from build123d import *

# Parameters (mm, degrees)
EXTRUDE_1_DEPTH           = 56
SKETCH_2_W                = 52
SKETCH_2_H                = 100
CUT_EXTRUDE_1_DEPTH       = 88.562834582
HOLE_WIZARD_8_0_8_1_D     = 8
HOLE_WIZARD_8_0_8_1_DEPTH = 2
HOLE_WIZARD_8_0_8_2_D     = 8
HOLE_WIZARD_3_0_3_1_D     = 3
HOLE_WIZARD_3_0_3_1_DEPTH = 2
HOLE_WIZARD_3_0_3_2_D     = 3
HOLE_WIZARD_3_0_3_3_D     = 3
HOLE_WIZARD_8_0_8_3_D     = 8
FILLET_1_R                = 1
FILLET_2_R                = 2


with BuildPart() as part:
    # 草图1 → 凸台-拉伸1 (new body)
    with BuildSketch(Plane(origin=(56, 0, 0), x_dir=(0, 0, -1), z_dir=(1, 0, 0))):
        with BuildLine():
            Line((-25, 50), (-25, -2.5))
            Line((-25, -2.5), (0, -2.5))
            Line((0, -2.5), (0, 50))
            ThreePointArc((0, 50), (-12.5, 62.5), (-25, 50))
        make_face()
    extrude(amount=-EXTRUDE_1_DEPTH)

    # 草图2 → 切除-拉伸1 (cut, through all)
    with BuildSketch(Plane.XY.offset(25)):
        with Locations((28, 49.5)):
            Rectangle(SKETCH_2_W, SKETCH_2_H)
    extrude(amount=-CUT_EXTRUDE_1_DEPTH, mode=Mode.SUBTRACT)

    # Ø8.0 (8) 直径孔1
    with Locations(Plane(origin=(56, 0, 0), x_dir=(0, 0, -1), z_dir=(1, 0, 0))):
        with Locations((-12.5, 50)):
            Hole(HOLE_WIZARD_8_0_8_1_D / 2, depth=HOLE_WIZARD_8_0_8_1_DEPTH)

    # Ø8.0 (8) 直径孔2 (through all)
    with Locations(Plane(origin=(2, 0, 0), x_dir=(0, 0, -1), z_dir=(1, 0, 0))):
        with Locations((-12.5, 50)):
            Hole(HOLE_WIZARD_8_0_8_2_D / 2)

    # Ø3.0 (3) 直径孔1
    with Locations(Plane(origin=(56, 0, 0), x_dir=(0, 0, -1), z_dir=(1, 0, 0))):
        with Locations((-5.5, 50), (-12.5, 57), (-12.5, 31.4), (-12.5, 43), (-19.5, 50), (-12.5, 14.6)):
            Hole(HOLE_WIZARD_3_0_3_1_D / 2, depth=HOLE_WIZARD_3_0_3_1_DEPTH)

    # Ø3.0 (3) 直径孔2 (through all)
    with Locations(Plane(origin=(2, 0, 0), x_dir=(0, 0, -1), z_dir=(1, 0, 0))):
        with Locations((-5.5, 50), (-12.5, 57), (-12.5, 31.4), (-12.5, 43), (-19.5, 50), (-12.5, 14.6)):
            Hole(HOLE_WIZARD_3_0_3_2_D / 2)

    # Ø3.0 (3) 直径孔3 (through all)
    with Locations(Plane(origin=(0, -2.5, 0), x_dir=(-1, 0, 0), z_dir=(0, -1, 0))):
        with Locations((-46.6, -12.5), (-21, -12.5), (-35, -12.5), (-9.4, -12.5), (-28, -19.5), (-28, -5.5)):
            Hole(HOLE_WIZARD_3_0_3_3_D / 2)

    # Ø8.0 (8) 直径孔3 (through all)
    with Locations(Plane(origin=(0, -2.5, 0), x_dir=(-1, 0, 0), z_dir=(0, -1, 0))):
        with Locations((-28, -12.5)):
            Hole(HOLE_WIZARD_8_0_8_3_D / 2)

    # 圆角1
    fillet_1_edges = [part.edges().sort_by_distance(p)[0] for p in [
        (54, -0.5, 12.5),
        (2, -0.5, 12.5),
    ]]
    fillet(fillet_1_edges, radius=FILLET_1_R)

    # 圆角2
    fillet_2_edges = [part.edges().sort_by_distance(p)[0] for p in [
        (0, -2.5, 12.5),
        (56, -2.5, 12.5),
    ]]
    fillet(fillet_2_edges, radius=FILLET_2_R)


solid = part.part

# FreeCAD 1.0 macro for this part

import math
import FreeCAD as App
import Part
import Sketcher
from FreeCAD import Vector


def edges_at(feature, points):
    """Names of the edges that pass closest to the given points."""
    edges = feature.Shape.Edges
    near = lambda p: min(range(len(edges)), key=lambda i: edges[i].distToShape(Part.Vertex(*p))[0])
    return sorted({f"Edge{near(p) + 1}" for p in points})


def add_polygon(sketch, points):
    """Adds a closed chain of lines whose ends are joined by coincident constraints."""
    first, n = sketch.GeometryCount, len(points)
    for a, b in zip(points, points[1:] + points[:1]):
        sketch.addGeometry(Part.LineSegment(App.Vector(*a, 0), App.Vector(*b, 0)), False)
    for i in range(n):
        sketch.addConstraint(Sketcher.Constraint("Coincident", first + i, 2, first + (i + 1) % n, 1))

doc = App.newDocument("Part")
body = doc.addObject("PartDesign::Body", "Body")

# Sketch on YZ plane
sketch1 = body.newObject("Sketcher::SketchObject", "Sketch")
sketch1.AttachmentSupport = (doc.getObject("YZ_Plane"), [""])
sketch1.MapMode = "FlatFace"
sketch1.AttachmentOffset = App.Placement(Vector(0, 0, 56), App.Rotation())
sketch1.addGeometry([
    Part.LineSegment(Vector(50, 25, 0), Vector(-2.5, 25, 0)),
    Part.LineSegment(Vector(-2.5, 25, 0), Vector(-2.5, 0, 0)),
    Part.LineSegment(Vector(-2.5, 0, 0), Vector(50, 0, 0)),
    Part.ArcOfCircle(Part.Circle(Vector(50, 12.5, 0), Vector(0, 0, 1), 12.5), math.radians(-90), math.radians(90)),
], False)
sketch1.addConstraint([
    Sketcher.Constraint("Coincident", 0, 2, 1, 1),
    Sketcher.Constraint("Coincident", 1, 2, 2, 1),
    Sketcher.Constraint("Tangent", 2, 2, 3, 1),
    Sketcher.Constraint("Tangent", 3, 2, 0, 1),
    Sketcher.Constraint("Horizontal", 0),
    Sketcher.Constraint("Vertical", 1),
    Sketcher.Constraint("Horizontal", 2),
    Sketcher.Constraint("PointOnObject", 1, 2, -1),
    Sketcher.Constraint("Radius", 3, 12.5),
    Sketcher.Constraint("DistanceX", 0, 2, 0, 1, 52.5),
    Sketcher.Constraint("DistanceX", -1, 1, 3, 3, 50.0),
])
pad1 = body.newObject("PartDesign::Pad", "Pad")
pad1.Profile = sketch1
pad1.Length = 56
pad1.Reversed = True

# Sketch on XY plane
sketch2 = body.newObject("Sketcher::SketchObject", "Sketch001")
sketch2.AttachmentSupport = (doc.getObject("XY_Plane"), [""])
sketch2.MapMode = "FlatFace"
sketch2.AttachmentOffset = App.Placement(Vector(0, 0, 25), App.Rotation())
add_polygon(sketch2, [(2, 99.5), (2, -0.5), (54, -0.5), (54, 99.5)])  # lines 0-3
sketch2.addConstraint([
    Sketcher.Constraint("Vertical", 0),
    Sketcher.Constraint("Horizontal", 1),
    Sketcher.Constraint("Vertical", 2),
    Sketcher.Constraint("Horizontal", 3),
    Sketcher.Constraint("DistanceX", 1, 1, 1, 2, 52.0),
    Sketcher.Constraint("DistanceY", 0, 2, 0, 1, 100.0),
    Sketcher.Constraint("DistanceX", -1, 1, 0, 2, 2.0),
    Sketcher.Constraint("DistanceY", 0, 2, -1, 1, 0.5),
])
pocket1 = body.newObject("PartDesign::Pocket", "Pocket")
pocket1.Profile = sketch2
pocket1.Type = "ThroughAll"

# Sketch on YZ plane
sketch3 = body.newObject("Sketcher::SketchObject", "Sketch002")
sketch3.AttachmentSupport = (doc.getObject("YZ_Plane"), [""])
sketch3.MapMode = "FlatFace"
sketch3.AttachmentOffset = App.Placement(Vector(0, 0, 56), App.Rotation())
sketch3.addGeometry(Part.Circle(Vector(50, 12.5, 0), Vector(0, 0, 1), 4), False)
sketch3.addConstraint([
    Sketcher.Constraint("Diameter", 0, 8.0),
    Sketcher.Constraint("DistanceX", -1, 1, 0, 3, 50.0),
    Sketcher.Constraint("DistanceY", -1, 1, 0, 3, 12.5),
])
doc.recompute()
hole = body.newObject("PartDesign::Hole", "Hole")
hole.Profile = sketch3
hole.ThreadType = "None"
hole.Diameter = 8
hole.DepthType = "Dimension"
hole.Depth = 2
hole.DrillPoint = "Flat"

# Sketch on YZ plane
sketch4 = body.newObject("Sketcher::SketchObject", "Sketch003")
sketch4.AttachmentSupport = (doc.getObject("YZ_Plane"), [""])
sketch4.MapMode = "FlatFace"
sketch4.AttachmentOffset = App.Placement(Vector(0, 0, 2), App.Rotation())
sketch4.addGeometry(Part.Circle(Vector(50, 12.5, 0), Vector(0, 0, 1), 4), False)
sketch4.addConstraint([
    Sketcher.Constraint("Diameter", 0, 8.0),
    Sketcher.Constraint("DistanceX", -1, 1, 0, 3, 50.0),
    Sketcher.Constraint("DistanceY", -1, 1, 0, 3, 12.5),
])
doc.recompute()
hole2 = body.newObject("PartDesign::Hole", "Hole001")
hole2.Profile = sketch4
hole2.ThreadType = "None"
hole2.Diameter = 8
hole2.DepthType = "ThroughAll"

# Sketch on YZ plane
sketch5 = body.newObject("Sketcher::SketchObject", "Sketch004")
sketch5.AttachmentSupport = (doc.getObject("YZ_Plane"), [""])
sketch5.MapMode = "FlatFace"
sketch5.AttachmentOffset = App.Placement(Vector(0, 0, 56), App.Rotation())
sketch5.addGeometry([
    Part.Circle(Vector(50, 5.5, 0), Vector(0, 0, 1), 1.5),  # 0
    Part.Circle(Vector(57, 12.5, 0), Vector(0, 0, 1), 1.5),  # 1
    Part.Circle(Vector(31.4, 12.5, 0), Vector(0, 0, 1), 1.5),  # 2
    Part.Circle(Vector(43, 12.5, 0), Vector(0, 0, 1), 1.5),  # 3
    Part.Circle(Vector(50, 19.5, 0), Vector(0, 0, 1), 1.5),  # 4
    Part.Circle(Vector(14.6, 12.5, 0), Vector(0, 0, 1), 1.5),  # 5
], False)
sketch5.addConstraint([
    Sketcher.Constraint("Equal", 0, 1),
    Sketcher.Constraint("Equal", 1, 2),
    Sketcher.Constraint("Equal", 2, 3),
    Sketcher.Constraint("Equal", 3, 4),
    Sketcher.Constraint("Equal", 4, 5),
    Sketcher.Constraint("Horizontal", 1, 3, 2, 3),
    Sketcher.Constraint("Horizontal", 2, 3, 3, 3),
    Sketcher.Constraint("Horizontal", 3, 3, 5, 3),
    Sketcher.Constraint("Vertical", 0, 3, 4, 3),
    Sketcher.Constraint("Diameter", 0, 3.0),
    Sketcher.Constraint("DistanceX", -1, 1, 0, 3, 50.0),
    Sketcher.Constraint("DistanceX", -1, 1, 1, 3, 57.0),
    Sketcher.Constraint("DistanceX", -1, 1, 3, 3, 43.0),
    Sketcher.Constraint("DistanceY", 0, 3, 1, 3, 7.0),
    Sketcher.Constraint("DistanceY", 1, 3, 4, 3, 7.0),
    Sketcher.Constraint("DistanceY", -1, 1, 0, 3, 5.5),
    Sketcher.Constraint("DistanceX", -1, 1, 2, 3, 31.4),
    Sketcher.Constraint("DistanceX", -1, 1, 5, 3, 14.6),
])
doc.recompute()
hole3 = body.newObject("PartDesign::Hole", "Hole002")
hole3.Profile = sketch5
hole3.ThreadType = "None"
hole3.Diameter = 3
hole3.DepthType = "Dimension"
hole3.Depth = 2
hole3.DrillPoint = "Flat"

# Sketch on YZ plane
sketch6 = body.newObject("Sketcher::SketchObject", "Sketch005")
sketch6.AttachmentSupport = (doc.getObject("YZ_Plane"), [""])
sketch6.MapMode = "FlatFace"
sketch6.AttachmentOffset = App.Placement(Vector(0, 0, 2), App.Rotation())
sketch6.addGeometry([
    Part.Circle(Vector(50, 5.5, 0), Vector(0, 0, 1), 1.5),  # 0
    Part.Circle(Vector(57, 12.5, 0), Vector(0, 0, 1), 1.5),  # 1
    Part.Circle(Vector(31.4, 12.5, 0), Vector(0, 0, 1), 1.5),  # 2
    Part.Circle(Vector(43, 12.5, 0), Vector(0, 0, 1), 1.5),  # 3
    Part.Circle(Vector(50, 19.5, 0), Vector(0, 0, 1), 1.5),  # 4
    Part.Circle(Vector(14.6, 12.5, 0), Vector(0, 0, 1), 1.5),  # 5
], False)
sketch6.addConstraint([
    Sketcher.Constraint("Equal", 0, 1),
    Sketcher.Constraint("Equal", 1, 2),
    Sketcher.Constraint("Equal", 2, 3),
    Sketcher.Constraint("Equal", 3, 4),
    Sketcher.Constraint("Equal", 4, 5),
    Sketcher.Constraint("Horizontal", 1, 3, 2, 3),
    Sketcher.Constraint("Horizontal", 2, 3, 3, 3),
    Sketcher.Constraint("Horizontal", 3, 3, 5, 3),
    Sketcher.Constraint("Vertical", 0, 3, 4, 3),
    Sketcher.Constraint("Diameter", 0, 3.0),
    Sketcher.Constraint("DistanceX", -1, 1, 0, 3, 50.0),
    Sketcher.Constraint("DistanceX", -1, 1, 1, 3, 57.0),
    Sketcher.Constraint("DistanceX", -1, 1, 3, 3, 43.0),
    Sketcher.Constraint("DistanceY", 0, 3, 1, 3, 7.0),
    Sketcher.Constraint("DistanceY", 1, 3, 4, 3, 7.0),
    Sketcher.Constraint("DistanceY", -1, 1, 0, 3, 5.5),
    Sketcher.Constraint("DistanceX", -1, 1, 2, 3, 31.4),
    Sketcher.Constraint("DistanceX", -1, 1, 5, 3, 14.6),
])
doc.recompute()
hole4 = body.newObject("PartDesign::Hole", "Hole003")
hole4.Profile = sketch6
hole4.ThreadType = "None"
hole4.Diameter = 3
hole4.DepthType = "ThroughAll"

# Sketch on XZ plane
sketch7 = body.newObject("Sketcher::SketchObject", "Sketch006")
sketch7.AttachmentSupport = (doc.getObject("XZ_Plane"), [""])
sketch7.MapMode = "FlatFace"
sketch7.AttachmentOffset = App.Placement(Vector(0, 0, 2.5), App.Rotation())
sketch7.addGeometry([
    Part.Circle(Vector(46.6, 12.5, 0), Vector(0, 0, 1), 1.5),  # 0
    Part.Circle(Vector(21, 12.5, 0), Vector(0, 0, 1), 1.5),  # 1
    Part.Circle(Vector(35, 12.5, 0), Vector(0, 0, 1), 1.5),  # 2
    Part.Circle(Vector(9.4, 12.5, 0), Vector(0, 0, 1), 1.5),  # 3
    Part.Circle(Vector(28, 19.5, 0), Vector(0, 0, 1), 1.5),  # 4
    Part.Circle(Vector(28, 5.5, 0), Vector(0, 0, 1), 1.5),  # 5
], False)
sketch7.addConstraint([
    Sketcher.Constraint("Equal", 0, 1),
    Sketcher.Constraint("Equal", 1, 2),
    Sketcher.Constraint("Equal", 2, 3),
    Sketcher.Constraint("Equal", 3, 4),
    Sketcher.Constraint("Equal", 4, 5),
    Sketcher.Constraint("Horizontal", 0, 3, 1, 3),
    Sketcher.Constraint("Horizontal", 1, 3, 2, 3),
    Sketcher.Constraint("Horizontal", 2, 3, 3, 3),
    Sketcher.Constraint("Vertical", 4, 3, 5, 3),
    Sketcher.Constraint("Diameter", 0, 3.0),
    Sketcher.Constraint("DistanceX", -1, 1, 1, 3, 21.0),
    Sketcher.Constraint("DistanceX", -1, 1, 2, 3, 35.0),
    Sketcher.Constraint("DistanceX", -1, 1, 4, 3, 28.0),
    Sketcher.Constraint("DistanceY", 1, 3, 4, 3, 7.0),
    Sketcher.Constraint("DistanceY", 5, 3, 1, 3, 7.0),
    Sketcher.Constraint("DistanceX", -1, 1, 0, 3, 46.6),
    Sketcher.Constraint("DistanceY", -1, 1, 0, 3, 12.5),
    Sketcher.Constraint("DistanceX", -1, 1, 3, 3, 9.4),
])
doc.recompute()
hole5 = body.newObject("PartDesign::Hole", "Hole004")
hole5.Profile = sketch7
hole5.ThreadType = "None"
hole5.Diameter = 3
hole5.DepthType = "ThroughAll"

# Sketch on XZ plane
sketch8 = body.newObject("Sketcher::SketchObject", "Sketch007")
sketch8.AttachmentSupport = (doc.getObject("XZ_Plane"), [""])
sketch8.MapMode = "FlatFace"
sketch8.AttachmentOffset = App.Placement(Vector(0, 0, 2.5), App.Rotation())
sketch8.addGeometry(Part.Circle(Vector(28, 12.5, 0), Vector(0, 0, 1), 4), False)
sketch8.addConstraint([
    Sketcher.Constraint("Diameter", 0, 8.0),
    Sketcher.Constraint("DistanceX", -1, 1, 0, 3, 28.0),
    Sketcher.Constraint("DistanceY", -1, 1, 0, 3, 12.5),
])
doc.recompute()
hole6 = body.newObject("PartDesign::Hole", "Hole005")
hole6.Profile = sketch8
hole6.ThreadType = "None"
hole6.Diameter = 8
hole6.DepthType = "ThroughAll"
doc.recompute()

fillet = body.newObject("PartDesign::Fillet", "Fillet")
fillet.Base = (hole6, edges_at(hole6, [(54, -0.5, 12.5), (2, -0.5, 12.5)]))
fillet.Radius = 1
doc.recompute()

fillet2 = body.newObject("PartDesign::Fillet", "Fillet001")
fillet2.Base = (fillet, edges_at(fillet, [(0, -2.5, 12.5), (56, -2.5, 12.5)]))
fillet2.Radius = 2

doc.recompute()
